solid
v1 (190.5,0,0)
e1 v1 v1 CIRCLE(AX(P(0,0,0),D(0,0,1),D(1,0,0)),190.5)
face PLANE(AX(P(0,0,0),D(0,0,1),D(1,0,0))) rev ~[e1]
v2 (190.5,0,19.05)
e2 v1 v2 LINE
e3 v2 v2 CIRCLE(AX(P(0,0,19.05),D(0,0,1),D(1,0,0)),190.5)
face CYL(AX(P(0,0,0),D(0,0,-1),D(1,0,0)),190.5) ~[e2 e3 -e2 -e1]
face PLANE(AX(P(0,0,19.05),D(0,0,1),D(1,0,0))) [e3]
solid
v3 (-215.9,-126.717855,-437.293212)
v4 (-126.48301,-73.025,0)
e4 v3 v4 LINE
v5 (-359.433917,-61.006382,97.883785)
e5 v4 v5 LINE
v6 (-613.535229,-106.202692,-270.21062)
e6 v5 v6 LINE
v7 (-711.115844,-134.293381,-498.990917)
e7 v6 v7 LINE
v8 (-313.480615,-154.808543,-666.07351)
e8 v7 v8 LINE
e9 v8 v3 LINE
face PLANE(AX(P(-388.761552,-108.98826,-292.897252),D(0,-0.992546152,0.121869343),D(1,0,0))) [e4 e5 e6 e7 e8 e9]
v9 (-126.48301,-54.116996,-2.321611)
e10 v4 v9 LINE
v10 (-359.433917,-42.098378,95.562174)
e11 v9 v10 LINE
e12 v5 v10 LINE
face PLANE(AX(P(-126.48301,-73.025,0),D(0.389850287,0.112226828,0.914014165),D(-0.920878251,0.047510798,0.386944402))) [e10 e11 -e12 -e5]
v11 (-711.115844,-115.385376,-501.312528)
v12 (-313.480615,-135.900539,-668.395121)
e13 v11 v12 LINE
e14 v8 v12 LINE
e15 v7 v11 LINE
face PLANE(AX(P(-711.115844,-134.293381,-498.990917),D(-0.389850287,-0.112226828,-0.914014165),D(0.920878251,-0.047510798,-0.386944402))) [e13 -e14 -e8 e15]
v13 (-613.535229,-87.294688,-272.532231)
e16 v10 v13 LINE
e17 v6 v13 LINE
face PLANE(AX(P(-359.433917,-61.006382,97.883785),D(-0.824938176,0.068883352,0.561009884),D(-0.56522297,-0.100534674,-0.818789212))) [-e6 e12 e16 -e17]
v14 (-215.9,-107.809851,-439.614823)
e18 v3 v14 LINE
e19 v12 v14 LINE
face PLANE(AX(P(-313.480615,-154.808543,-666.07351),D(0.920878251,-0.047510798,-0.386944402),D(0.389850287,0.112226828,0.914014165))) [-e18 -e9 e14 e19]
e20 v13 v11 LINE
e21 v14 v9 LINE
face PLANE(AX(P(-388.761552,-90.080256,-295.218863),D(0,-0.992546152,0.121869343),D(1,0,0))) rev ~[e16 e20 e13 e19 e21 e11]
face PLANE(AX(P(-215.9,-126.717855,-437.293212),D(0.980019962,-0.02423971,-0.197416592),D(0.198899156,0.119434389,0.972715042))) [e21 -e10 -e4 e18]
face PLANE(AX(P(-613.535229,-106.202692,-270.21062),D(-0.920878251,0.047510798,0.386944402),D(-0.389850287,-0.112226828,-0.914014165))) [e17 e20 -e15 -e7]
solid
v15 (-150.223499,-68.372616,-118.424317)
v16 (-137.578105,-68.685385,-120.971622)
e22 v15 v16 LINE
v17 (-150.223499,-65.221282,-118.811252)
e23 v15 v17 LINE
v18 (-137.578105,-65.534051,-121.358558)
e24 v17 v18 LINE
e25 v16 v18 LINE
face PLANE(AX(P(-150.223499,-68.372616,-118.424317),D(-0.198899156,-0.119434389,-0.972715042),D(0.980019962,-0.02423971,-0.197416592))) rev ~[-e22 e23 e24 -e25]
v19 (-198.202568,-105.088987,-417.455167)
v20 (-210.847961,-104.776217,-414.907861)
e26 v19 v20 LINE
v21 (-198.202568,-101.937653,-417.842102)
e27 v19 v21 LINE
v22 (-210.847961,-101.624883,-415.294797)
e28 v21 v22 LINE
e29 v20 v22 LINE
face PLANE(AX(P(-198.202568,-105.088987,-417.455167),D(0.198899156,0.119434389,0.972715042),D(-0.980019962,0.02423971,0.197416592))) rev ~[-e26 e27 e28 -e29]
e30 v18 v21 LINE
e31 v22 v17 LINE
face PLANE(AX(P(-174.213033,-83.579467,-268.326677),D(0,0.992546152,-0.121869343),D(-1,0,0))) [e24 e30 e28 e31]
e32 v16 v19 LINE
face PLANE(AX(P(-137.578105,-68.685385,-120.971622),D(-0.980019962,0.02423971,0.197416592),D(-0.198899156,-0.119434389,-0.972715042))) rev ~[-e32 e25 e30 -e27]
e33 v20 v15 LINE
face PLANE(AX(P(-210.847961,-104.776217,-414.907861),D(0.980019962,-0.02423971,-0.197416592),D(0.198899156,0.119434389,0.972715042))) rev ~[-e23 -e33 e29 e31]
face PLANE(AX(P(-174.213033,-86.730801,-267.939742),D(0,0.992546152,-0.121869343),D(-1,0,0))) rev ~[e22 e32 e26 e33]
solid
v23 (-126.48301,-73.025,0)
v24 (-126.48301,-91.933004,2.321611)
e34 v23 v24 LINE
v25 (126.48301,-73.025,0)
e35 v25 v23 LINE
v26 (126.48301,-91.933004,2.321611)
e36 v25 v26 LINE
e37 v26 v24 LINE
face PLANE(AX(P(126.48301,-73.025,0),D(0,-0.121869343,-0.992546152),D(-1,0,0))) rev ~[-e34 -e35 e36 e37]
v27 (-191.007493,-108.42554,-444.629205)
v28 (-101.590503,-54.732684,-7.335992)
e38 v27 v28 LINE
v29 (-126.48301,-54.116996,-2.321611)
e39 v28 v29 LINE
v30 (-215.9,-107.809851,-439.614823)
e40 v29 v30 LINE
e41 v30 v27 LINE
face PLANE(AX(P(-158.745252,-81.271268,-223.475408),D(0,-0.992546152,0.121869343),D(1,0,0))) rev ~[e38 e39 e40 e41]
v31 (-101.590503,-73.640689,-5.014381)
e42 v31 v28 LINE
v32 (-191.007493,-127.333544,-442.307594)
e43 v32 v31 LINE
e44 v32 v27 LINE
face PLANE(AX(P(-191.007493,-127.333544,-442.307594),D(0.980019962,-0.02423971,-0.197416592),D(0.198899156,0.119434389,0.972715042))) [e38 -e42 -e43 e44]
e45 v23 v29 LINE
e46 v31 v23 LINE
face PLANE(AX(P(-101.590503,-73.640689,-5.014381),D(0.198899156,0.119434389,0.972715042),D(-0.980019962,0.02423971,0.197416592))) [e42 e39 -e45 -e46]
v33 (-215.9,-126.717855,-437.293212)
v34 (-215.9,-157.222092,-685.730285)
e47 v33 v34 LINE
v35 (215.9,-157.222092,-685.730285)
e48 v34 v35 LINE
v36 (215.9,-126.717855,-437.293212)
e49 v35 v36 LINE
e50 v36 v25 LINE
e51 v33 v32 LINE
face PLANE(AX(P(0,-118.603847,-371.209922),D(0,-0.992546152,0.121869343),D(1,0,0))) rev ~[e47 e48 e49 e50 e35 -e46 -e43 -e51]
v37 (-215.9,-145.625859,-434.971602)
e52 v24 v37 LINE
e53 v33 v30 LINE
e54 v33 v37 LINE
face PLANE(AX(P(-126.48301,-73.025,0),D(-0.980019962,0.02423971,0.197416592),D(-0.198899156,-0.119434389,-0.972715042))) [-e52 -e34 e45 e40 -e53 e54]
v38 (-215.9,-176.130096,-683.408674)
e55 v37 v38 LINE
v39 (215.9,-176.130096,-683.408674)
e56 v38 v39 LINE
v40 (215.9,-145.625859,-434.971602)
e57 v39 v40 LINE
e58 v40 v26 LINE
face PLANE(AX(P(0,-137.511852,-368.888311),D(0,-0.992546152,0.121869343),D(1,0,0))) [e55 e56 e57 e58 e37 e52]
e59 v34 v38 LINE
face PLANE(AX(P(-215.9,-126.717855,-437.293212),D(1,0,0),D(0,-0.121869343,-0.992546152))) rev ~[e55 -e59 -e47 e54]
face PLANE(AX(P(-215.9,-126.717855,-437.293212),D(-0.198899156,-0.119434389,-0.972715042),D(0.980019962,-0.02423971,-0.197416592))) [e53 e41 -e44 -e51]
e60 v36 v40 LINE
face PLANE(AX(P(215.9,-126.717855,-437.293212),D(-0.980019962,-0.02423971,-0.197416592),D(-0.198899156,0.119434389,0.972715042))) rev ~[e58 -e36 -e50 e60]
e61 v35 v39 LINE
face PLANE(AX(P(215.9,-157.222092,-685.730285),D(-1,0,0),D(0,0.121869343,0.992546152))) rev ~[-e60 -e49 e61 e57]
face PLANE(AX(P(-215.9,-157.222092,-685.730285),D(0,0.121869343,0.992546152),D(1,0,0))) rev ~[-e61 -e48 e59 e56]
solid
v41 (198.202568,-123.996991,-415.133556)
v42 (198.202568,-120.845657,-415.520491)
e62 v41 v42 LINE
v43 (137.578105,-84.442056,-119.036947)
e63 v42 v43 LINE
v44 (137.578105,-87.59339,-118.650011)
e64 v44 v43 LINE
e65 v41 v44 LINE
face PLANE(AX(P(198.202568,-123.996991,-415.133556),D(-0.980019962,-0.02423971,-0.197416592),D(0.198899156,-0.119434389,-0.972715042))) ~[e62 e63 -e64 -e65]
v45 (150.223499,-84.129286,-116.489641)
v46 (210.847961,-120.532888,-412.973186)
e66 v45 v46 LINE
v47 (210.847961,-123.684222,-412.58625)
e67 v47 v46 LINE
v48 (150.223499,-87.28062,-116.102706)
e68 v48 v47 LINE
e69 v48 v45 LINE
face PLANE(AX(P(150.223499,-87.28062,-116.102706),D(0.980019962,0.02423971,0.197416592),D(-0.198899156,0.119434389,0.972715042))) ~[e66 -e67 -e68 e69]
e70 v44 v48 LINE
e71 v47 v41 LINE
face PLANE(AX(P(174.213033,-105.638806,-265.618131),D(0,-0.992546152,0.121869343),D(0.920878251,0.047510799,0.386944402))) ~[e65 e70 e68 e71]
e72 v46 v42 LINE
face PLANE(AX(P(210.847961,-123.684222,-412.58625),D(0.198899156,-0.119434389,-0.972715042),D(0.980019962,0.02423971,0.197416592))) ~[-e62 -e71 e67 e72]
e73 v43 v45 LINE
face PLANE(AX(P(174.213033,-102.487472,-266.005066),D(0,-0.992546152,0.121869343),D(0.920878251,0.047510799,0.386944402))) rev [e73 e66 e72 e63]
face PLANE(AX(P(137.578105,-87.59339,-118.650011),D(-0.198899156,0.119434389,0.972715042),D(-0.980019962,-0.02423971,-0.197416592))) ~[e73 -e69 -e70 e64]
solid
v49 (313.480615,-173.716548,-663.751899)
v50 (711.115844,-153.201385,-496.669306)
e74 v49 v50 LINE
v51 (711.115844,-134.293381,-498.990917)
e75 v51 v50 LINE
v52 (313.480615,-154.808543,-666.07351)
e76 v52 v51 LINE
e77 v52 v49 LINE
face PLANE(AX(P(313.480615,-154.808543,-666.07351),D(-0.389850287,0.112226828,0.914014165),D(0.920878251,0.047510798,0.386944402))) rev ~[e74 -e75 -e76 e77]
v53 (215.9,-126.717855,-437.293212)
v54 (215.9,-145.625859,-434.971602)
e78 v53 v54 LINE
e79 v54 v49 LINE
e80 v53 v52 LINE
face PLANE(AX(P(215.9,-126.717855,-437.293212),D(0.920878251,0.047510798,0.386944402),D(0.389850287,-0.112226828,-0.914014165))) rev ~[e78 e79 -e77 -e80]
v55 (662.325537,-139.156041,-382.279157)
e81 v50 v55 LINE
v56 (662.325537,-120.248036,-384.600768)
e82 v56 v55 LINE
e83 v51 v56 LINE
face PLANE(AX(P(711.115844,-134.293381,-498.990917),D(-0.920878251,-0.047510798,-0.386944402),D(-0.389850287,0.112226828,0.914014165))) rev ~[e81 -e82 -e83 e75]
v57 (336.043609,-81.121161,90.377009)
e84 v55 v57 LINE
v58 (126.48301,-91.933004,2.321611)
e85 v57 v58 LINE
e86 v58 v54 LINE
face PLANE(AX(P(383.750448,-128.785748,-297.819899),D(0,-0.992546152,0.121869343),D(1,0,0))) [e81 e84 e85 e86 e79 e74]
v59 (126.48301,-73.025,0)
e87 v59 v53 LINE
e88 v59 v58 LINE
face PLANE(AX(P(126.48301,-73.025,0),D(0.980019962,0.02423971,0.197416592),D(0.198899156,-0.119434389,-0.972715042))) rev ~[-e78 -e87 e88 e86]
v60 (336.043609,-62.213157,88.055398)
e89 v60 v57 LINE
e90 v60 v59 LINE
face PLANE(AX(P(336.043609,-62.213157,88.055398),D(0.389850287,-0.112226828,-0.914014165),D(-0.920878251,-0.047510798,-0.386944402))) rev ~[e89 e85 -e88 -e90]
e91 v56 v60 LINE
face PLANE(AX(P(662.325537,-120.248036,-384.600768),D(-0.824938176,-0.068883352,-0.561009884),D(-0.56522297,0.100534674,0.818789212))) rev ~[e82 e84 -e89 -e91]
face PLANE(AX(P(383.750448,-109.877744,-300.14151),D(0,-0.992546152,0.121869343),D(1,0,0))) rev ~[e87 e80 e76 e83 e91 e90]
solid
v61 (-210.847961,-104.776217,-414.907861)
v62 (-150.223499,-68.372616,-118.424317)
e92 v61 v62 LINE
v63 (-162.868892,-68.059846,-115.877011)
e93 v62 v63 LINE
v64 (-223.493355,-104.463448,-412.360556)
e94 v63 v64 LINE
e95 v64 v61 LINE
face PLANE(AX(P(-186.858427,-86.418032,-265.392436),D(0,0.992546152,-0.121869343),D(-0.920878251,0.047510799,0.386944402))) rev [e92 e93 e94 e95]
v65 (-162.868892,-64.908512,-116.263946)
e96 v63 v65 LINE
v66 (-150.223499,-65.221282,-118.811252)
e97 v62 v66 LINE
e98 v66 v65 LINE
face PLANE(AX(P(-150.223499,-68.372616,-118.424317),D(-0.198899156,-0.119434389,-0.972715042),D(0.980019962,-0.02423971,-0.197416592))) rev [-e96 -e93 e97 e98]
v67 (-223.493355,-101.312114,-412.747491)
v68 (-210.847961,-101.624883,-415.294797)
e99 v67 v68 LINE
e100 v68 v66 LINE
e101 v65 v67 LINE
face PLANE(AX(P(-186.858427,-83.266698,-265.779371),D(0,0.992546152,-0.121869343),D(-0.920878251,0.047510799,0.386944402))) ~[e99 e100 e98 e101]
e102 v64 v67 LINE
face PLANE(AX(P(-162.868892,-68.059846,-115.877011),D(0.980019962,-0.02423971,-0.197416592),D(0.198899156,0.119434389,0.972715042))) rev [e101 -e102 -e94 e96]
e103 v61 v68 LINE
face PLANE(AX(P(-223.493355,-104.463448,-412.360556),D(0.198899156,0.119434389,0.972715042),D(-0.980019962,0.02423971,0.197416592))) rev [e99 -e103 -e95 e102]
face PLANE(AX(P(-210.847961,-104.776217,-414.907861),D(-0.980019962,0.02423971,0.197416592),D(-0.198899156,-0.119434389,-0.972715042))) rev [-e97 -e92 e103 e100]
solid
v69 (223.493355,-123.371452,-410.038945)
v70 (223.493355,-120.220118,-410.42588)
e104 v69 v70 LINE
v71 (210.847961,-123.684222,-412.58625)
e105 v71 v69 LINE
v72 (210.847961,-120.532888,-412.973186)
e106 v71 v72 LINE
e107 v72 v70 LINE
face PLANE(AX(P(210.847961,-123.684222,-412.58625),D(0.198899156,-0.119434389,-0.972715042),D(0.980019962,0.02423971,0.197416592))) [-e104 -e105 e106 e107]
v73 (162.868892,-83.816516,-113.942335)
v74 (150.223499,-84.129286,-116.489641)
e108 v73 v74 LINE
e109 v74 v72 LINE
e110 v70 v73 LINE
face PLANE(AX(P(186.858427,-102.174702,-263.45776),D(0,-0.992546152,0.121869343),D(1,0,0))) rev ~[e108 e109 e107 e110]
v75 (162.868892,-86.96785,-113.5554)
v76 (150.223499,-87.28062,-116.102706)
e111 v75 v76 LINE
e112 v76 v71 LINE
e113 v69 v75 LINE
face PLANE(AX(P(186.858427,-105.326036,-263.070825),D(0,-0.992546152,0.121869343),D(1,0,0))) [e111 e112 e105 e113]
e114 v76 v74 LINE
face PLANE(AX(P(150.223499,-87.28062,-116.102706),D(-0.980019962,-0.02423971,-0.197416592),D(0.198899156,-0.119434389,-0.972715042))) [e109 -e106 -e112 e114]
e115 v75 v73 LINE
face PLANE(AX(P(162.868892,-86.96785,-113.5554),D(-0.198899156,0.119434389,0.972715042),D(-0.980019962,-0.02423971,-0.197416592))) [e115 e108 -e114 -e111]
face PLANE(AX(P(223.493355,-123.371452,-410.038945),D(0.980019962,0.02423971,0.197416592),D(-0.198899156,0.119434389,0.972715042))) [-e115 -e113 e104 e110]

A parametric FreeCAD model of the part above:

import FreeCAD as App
import Part
import Sketcher
Q = App.Units.Quantity

doc = App.newDocument("Part")
params = doc.addObject("Spreadsheet::Sheet", "Params")
for row, (alias, value) in enumerate([
    ("sketch1_diameter", "15 in"),
    ("pad1_length", "0.75 in"),
    ("sketch2_width", "17 in"),
    ("pad2_length", "0.75 in"),
    ("sketch3_length", "1 in"),
    ("pad3_length", "0.75 in"),
    ("sketch4_length", "17 in"),
    ("pad4_length", "0.75 in"),
    ("sketch5_length", "17 in"),
    ("pad5_length", "0.75 in"),
    ("sketch6_length", "12 in"),
    ("sketch6_length2", "0.508 in"),
    ("pad6_length", "0.125 in"),
    ("sketch7_length", "12 in"),
    ("sketch7_length2", "0.508 in"),
    ("pad7_length", "0.125 in"),
], start=1):
    params.set(f"A{row}", alias)
    params.set(f"B{row}", "=" + value)
    params.setAlias(f"B{row}", alias)

body = doc.addObject("PartDesign::Body", "Body")

sketch1 = doc.addObject("Sketcher::SketchObject", "Sketch")
body.addObject(sketch1)
sketch1.AttachmentSupport = (doc.XY_Plane, [""])
sketch1.MapMode = "FlatFace"
sketch1.addGeometry(Part.Circle(App.Vector(0, 0, 0), App.Vector(0, 0, 1), 190), False)
sketch1.addConstraint([
    Sketcher.Constraint("Coincident", 0, 3, -1, 1),
    Sketcher.Constraint("Diameter", 0, Q("15 in")),
])
sketch1.setExpression("Constraints[1]", "Params.sketch1_diameter")
pad1 = doc.addObject("PartDesign::Pad", "Pad")
body.addObject(pad1)
pad1.Profile = sketch1
pad1.setExpression("Length", "Params.pad1_length")
body2 = doc.addObject("PartDesign::Body", "Body001")

sketch2 = doc.addObject("Sketcher::SketchObject", "Sketch001")
body2.addObject(sketch2)
sketch2.Placement = App.Placement(App.Vector(0, -71.940423, 8.833173), App.Rotation(App.Vector(1, 0, 0), App.Vector(0, 0.121869343, 0.992546152), App.Vector(0, -0.992546152, 0.121869343), "ZXY"))
sketch2.addGeometry([
    Part.LineSegment(App.Vector(126, -9, 0), App.Vector(-126, -9, 0)),
    Part.LineSegment(App.Vector(-126, -9, 0), App.Vector(-216, -449, 0)),
    Part.LineSegment(App.Vector(-216, -449, 0), App.Vector(-216, -700, 0)),
    Part.LineSegment(App.Vector(-216, -700, 0), App.Vector(216, -700, 0)),
    Part.LineSegment(App.Vector(216, -700, 0), App.Vector(216, -449, 0)),
    Part.LineSegment(App.Vector(216, -449, 0), App.Vector(126, -9, 0)),
], False)
sketch2.addConstraint([
    Sketcher.Constraint("Coincident", 0, 2, 1, 1),
    Sketcher.Constraint("Coincident", 1, 2, 2, 1),
    Sketcher.Constraint("Coincident", 2, 2, 3, 1),
    Sketcher.Constraint("Coincident", 3, 2, 4, 1),
    Sketcher.Constraint("Coincident", 4, 2, 5, 1),
    Sketcher.Constraint("Coincident", 5, 2, 0, 1),
    Sketcher.Constraint("Horizontal", 0),
    Sketcher.Constraint("Vertical", 2),
    Sketcher.Constraint("Horizontal", 3),
    Sketcher.Constraint("Vertical", 4),
    Sketcher.Constraint("Symmetric", 1, 2, 4, 2, -2),
    Sketcher.Constraint("Equal", 1, 5),
    Sketcher.Constraint("DistanceX", 3, 1, 3, 2, Q("17 in")),
    Sketcher.Constraint("DistanceY", 2, 2, 0, 2, Q("27.2 in")),
    Sketcher.Constraint("DistanceX", 0, 2, 0, 1, 252.96602),
    Sketcher.Constraint("DistanceY", 2, 2, 2, 1, 250.302792),
    Sketcher.Constraint("DistanceY", 0, 2, -1, 1, 8.899509),
])
sketch2.setExpression("Constraints[12]", "Params.sketch2_width")
pad2 = doc.addObject("PartDesign::Pad", "Pad001")
body2.addObject(pad2)
pad2.Profile = sketch2
pad2.setExpression("Length", "Params.pad2_length")

sketch3 = doc.addObject("Sketcher::SketchObject", "Sketch002")
body2.addObject(sketch3)
sketch3.Placement = App.Placement(App.Vector(0, -71.940423, 8.833173), App.Rotation(App.Vector(1, 0, 0), App.Vector(0, 0.121869343, 0.992546152), App.Vector(0, -0.992546152, 0.121869343), "ZXY"))
sketch3.addGeometry([
    Part.LineSegment(App.Vector(-102, -14, 0), App.Vector(-126, -9, 0)),
    Part.LineSegment(App.Vector(-126, -9, 0), App.Vector(-216, -449, 0)),
    Part.LineSegment(App.Vector(-216, -449, 0), App.Vector(-191, -455, 0)),
    Part.LineSegment(App.Vector(-191, -455, 0), App.Vector(-102, -14, 0)),
], False)
sketch3.addConstraint([
    Sketcher.Constraint("Coincident", 0, 2, 1, 1),
    Sketcher.Constraint("Coincident", 1, 2, 2, 1),
    Sketcher.Constraint("Coincident", 2, 2, 3, 1),
    Sketcher.Constraint("Coincident", 3, 2, 0, 1),
    Sketcher.Constraint("Perpendicular", 0, 1),
    Sketcher.Constraint("Perpendicular", 1, 2),
    Sketcher.Constraint("Perpendicular", 2, 3),
    Sketcher.Constraint("Distance", 0, Q("1 in")),
    Sketcher.Constraint("DistanceX", 1, 2, -1, 1, Q("8.5 in")),
    Sketcher.Constraint("DistanceX", 0, 2, -1, 1, 126.48301),
    Sketcher.Constraint("DistanceY", 0, 2, -1, 1, 8.899509),
    Sketcher.Constraint("DistanceY", 1, 2, 0, 2, 440.577208),
])
sketch3.setExpression("Constraints[7]", "Params.sketch3_length")
pad3 = doc.addObject("PartDesign::Pad", "Pad002")
body2.addObject(pad3)
pad3.Profile = sketch3
pad3.setExpression("Length", "Params.pad3_length")
pad3.Reversed = True
body3 = doc.addObject("PartDesign::Body", "Body002")

sketch4 = doc.addObject("Sketcher::SketchObject", "Sketch003")
body3.addObject(sketch4)
sketch4.Placement = App.Placement(App.Vector(0, -71.940423, 8.833173), App.Rotation(App.Vector(1, 0, 0), App.Vector(0, 0.121869343, 0.992546152), App.Vector(0, -0.992546152, 0.121869343), "ZXY"))
sketch4.addGeometry([
    Part.LineSegment(App.Vector(336, 80, 0), App.Vector(126, -9, 0)),
    Part.LineSegment(App.Vector(126, -9, 0), App.Vector(216, -449, 0)),
    Part.LineSegment(App.Vector(216, -449, 0), App.Vector(313, -680, 0)),
    Part.LineSegment(App.Vector(313, -680, 0), App.Vector(711, -512, 0)),
    Part.LineSegment(App.Vector(711, -512, 0), App.Vector(662, -396, 0)),
    Part.LineSegment(App.Vector(662, -396, 0), App.Vector(336, 80, 0)),
], False)
sketch4.addConstraint([
    Sketcher.Constraint("Coincident", 0, 2, 1, 1),
    Sketcher.Constraint("Coincident", 1, 2, 2, 1),
    Sketcher.Constraint("Coincident", 2, 2, 3, 1),
    Sketcher.Constraint("Coincident", 3, 2, 4, 1),
    Sketcher.Constraint("Coincident", 4, 2, 5, 1),
    Sketcher.Constraint("Coincident", 5, 2, 0, 1),
    Sketcher.Constraint("Perpendicular", 0, 2),
    Sketcher.Constraint("Perpendicular", 2, 3),
    Sketcher.Constraint("Perpendicular", 3, 4),
    Sketcher.Constraint("Distance", 3, Q("17 in")),
    Sketcher.Constraint("DistanceX", -1, 1, 1, 2, Q("8.5 in")),
    Sketcher.Constraint("DistanceY", 3, 2, 4, 2, 115.249199),
    Sketcher.Constraint("DistanceX", 0, 2, 5, 2, 209.560599),
    Sketcher.Constraint("Distance", 0, 227.56602),
    Sketcher.Constraint("Distance", 2, 250.302792),
    Sketcher.Constraint("DistanceX", -1, 1, 0, 2, 126.48301),
    Sketcher.Constraint("DistanceY", 0, 2, -1, 1, 8.899509),
    Sketcher.Constraint("DistanceY", 3, 2, -1, 1, 511.637761),
])
sketch4.setExpression("Constraints[9]", "Params.sketch4_length")
pad4 = doc.addObject("PartDesign::Pad", "Pad003")
body3.addObject(pad4)
pad4.Profile = sketch4
pad4.setExpression("Length", "Params.pad4_length")
body4 = doc.addObject("PartDesign::Body", "Body003")

sketch5 = doc.addObject("Sketcher::SketchObject", "Sketch004")
body4.addObject(sketch5)
sketch5.Placement = App.Placement(App.Vector(0, -71.940423, 8.833173), App.Rotation(App.Vector(1, 0, 0), App.Vector(0, 0.121869343, 0.992546152), App.Vector(0, -0.992546152, 0.121869343), "ZXY"))
sketch5.addGeometry([
    Part.LineSegment(App.Vector(-216, -449, 0), App.Vector(-126, -9, 0)),
    Part.LineSegment(App.Vector(-126, -9, 0), App.Vector(-359, 90, 0)),
    Part.LineSegment(App.Vector(-359, 90, 0), App.Vector(-614, -281, 0)),
    Part.LineSegment(App.Vector(-614, -281, 0), App.Vector(-711, -512, 0)),
    Part.LineSegment(App.Vector(-711, -512, 0), App.Vector(-313, -680, 0)),
    Part.LineSegment(App.Vector(-313, -680, 0), App.Vector(-216, -449, 0)),
], False)
sketch5.addConstraint([
    Sketcher.Constraint("Coincident", 0, 2, 1, 1),
    Sketcher.Constraint("Coincident", 1, 2, 2, 1),
    Sketcher.Constraint("Coincident", 2, 2, 3, 1),
    Sketcher.Constraint("Coincident", 3, 2, 4, 1),
    Sketcher.Constraint("Coincident", 4, 2, 5, 1),
    Sketcher.Constraint("Coincident", 5, 2, 0, 1),
    Sketcher.Constraint("Perpendicular", 1, 3),
    Sketcher.Constraint("Perpendicular", 3, 4),
    Sketcher.Constraint("Perpendicular", 4, 5),
    Sketcher.Constraint("Equal", 0, 2),
    Sketcher.Constraint("Equal", 3, 5),
    Sketcher.Constraint("Distance", 4, Q("17 in")),
    Sketcher.Constraint("DistanceX", 5, 2, -1, 1, Q("8.5 in")),
    Sketcher.Constraint("DistanceX", 1, 2, 4, 2, 45.953302),
    Sketcher.Constraint("Distance", 1, 252.96602),
    Sketcher.Constraint("Distance", 3, 250.302792),
    Sketcher.Constraint("DistanceX", 0, 2, -1, 1, 126.48301),
    Sketcher.Constraint("DistanceY", 0, 2, -1, 1, 8.899509),
])
sketch5.setExpression("Constraints[11]", "Params.sketch5_length")
pad5 = doc.addObject("PartDesign::Pad", "Pad004")
body4.addObject(pad5)
pad5.Profile = sketch5
pad5.setExpression("Length", "Params.pad5_length")
pad5.Reversed = True
body5 = doc.addObject("PartDesign::Body", "Body004")

sketch6 = doc.addObject("Sketcher::SketchObject", "Sketch005")
body5.addObject(sketch6)
sketch6.Placement = App.Placement(App.Vector(0, -53.032419, 6.511562), App.Rotation(App.Vector(-1, 0, 0), App.Vector(0, 0.121869343, 0.992546152), App.Vector(0, 0.992546152, -0.121869343), "ZXY"))
sketch6.addGeometry([
    Part.LineSegment(App.Vector(198, -427, 0), App.Vector(211, -425, 0)),
    Part.LineSegment(App.Vector(211, -425, 0), App.Vector(150, -126, 0)),
    Part.LineSegment(App.Vector(150, -126, 0), App.Vector(138, -128, 0)),
    Part.LineSegment(App.Vector(138, -128, 0), App.Vector(198, -427, 0)),
], False)
sketch6.addConstraint([
    Sketcher.Constraint("Coincident", 0, 2, 1, 1),
    Sketcher.Constraint("Coincident", 1, 2, 2, 1),
    Sketcher.Constraint("Coincident", 2, 2, 3, 1),
    Sketcher.Constraint("Coincident", 3, 2, 0, 1),
    Sketcher.Constraint("Perpendicular", 0, 1),
    Sketcher.Constraint("Perpendicular", 1, 2),
    Sketcher.Constraint("Perpendicular", 2, 3),
    Sketcher.Constraint("Distance", 1, Q("12 in")),
    Sketcher.Constraint("Distance", 0, Q("0.508 in")),
    Sketcher.Constraint("DistanceX", -1, 1, 1, 2, 150.223499),
    Sketcher.Constraint("DistanceX", -1, 1, 0, 2, 210.847961),
    Sketcher.Constraint("DistanceY", 0, 2, -1, 1, 424.58421),
])
sketch6.setExpression("Constraints[7]", "Params.sketch6_length")
sketch6.setExpression("Constraints[8]", "Params.sketch6_length2")
pad6 = doc.addObject("PartDesign::Pad", "Pad005")
body5.addObject(pad6)
pad6.Profile = sketch6
pad6.setExpression("Length", "Params.pad6_length")
body6 = doc.addObject("PartDesign::Body", "Body005")
doc.recompute()

mirroring = doc.addObject("Part::Mirroring", "Mirroring")
mirroring.Source = body5
mirroring.Base = App.Vector(-180.53573, -84.998749, -266.859557)
mirroring.Normal = App.Vector(-0.980019962, 0.02423971, 0.197416592)
body6.BaseFeature = mirroring
doc.recompute()
body7 = doc.addObject("PartDesign::Body", "Body006")

sketch7 = doc.addObject("Sketcher::SketchObject", "Sketch006")
body7.addObject(sketch7)
sketch7.Placement = App.Placement(App.Vector(0, -71.940423, 8.833173), App.Rotation(App.Vector(1, 0, 0), App.Vector(0, 0.121869343, 0.992546152), App.Vector(0, -0.992546152, 0.121869343), "ZXY"))
sketch7.addGeometry([
    Part.LineSegment(App.Vector(211, -425, 0), App.Vector(223, -422, 0)),
    Part.LineSegment(App.Vector(223, -422, 0), App.Vector(163, -123, 0)),
    Part.LineSegment(App.Vector(163, -123, 0), App.Vector(150, -126, 0)),
    Part.LineSegment(App.Vector(150, -126, 0), App.Vector(211, -425, 0)),
], False)
sketch7.addConstraint([
    Sketcher.Constraint("Coincident", 0, 2, 1, 1),
    Sketcher.Constraint("Coincident", 1, 2, 2, 1),
    Sketcher.Constraint("Coincident", 2, 2, 3, 1),
    Sketcher.Constraint("Coincident", 3, 2, 0, 1),
    Sketcher.Constraint("Perpendicular", 0, 1),
    Sketcher.Constraint("Perpendicular", 1, 2),
    Sketcher.Constraint("Perpendicular", 2, 3),
    Sketcher.Constraint("Distance", 1, Q("12 in")),
    Sketcher.Constraint("Distance", 0, Q("0.508 in")),
    Sketcher.Constraint("DistanceX", -1, 1, 2, 2, 150.223499),
    Sketcher.Constraint("DistanceY", 1, 2, -1, 1, 123.30769),
    Sketcher.Constraint("DistanceX", -1, 1, 3, 2, 210.847961),
])
sketch7.setExpression("Constraints[7]", "Params.sketch7_length")
sketch7.setExpression("Constraints[8]", "Params.sketch7_length2")
pad7 = doc.addObject("PartDesign::Pad", "Pad006")
body7.addObject(pad7)
pad7.Profile = sketch7
pad7.setExpression("Length", "Params.pad7_length")
pad7.Reversed = True
body8 = doc.addObject("PartDesign::Body", "Body007")
doc.recompute()

mirroring2 = doc.addObject("Part::Mirroring", "Mirroring001")
mirroring2.Source = body7
mirroring2.Base = App.Vector(180.53573, -103.906754, -264.537946)
mirroring2.Normal = App.Vector(-0.980019962, -0.02423971, -0.197416592)
body8.BaseFeature = mirroring2
doc.recompute()
mirroring.Visibility = False
mirroring2.Visibility = False

doc.recompute()
